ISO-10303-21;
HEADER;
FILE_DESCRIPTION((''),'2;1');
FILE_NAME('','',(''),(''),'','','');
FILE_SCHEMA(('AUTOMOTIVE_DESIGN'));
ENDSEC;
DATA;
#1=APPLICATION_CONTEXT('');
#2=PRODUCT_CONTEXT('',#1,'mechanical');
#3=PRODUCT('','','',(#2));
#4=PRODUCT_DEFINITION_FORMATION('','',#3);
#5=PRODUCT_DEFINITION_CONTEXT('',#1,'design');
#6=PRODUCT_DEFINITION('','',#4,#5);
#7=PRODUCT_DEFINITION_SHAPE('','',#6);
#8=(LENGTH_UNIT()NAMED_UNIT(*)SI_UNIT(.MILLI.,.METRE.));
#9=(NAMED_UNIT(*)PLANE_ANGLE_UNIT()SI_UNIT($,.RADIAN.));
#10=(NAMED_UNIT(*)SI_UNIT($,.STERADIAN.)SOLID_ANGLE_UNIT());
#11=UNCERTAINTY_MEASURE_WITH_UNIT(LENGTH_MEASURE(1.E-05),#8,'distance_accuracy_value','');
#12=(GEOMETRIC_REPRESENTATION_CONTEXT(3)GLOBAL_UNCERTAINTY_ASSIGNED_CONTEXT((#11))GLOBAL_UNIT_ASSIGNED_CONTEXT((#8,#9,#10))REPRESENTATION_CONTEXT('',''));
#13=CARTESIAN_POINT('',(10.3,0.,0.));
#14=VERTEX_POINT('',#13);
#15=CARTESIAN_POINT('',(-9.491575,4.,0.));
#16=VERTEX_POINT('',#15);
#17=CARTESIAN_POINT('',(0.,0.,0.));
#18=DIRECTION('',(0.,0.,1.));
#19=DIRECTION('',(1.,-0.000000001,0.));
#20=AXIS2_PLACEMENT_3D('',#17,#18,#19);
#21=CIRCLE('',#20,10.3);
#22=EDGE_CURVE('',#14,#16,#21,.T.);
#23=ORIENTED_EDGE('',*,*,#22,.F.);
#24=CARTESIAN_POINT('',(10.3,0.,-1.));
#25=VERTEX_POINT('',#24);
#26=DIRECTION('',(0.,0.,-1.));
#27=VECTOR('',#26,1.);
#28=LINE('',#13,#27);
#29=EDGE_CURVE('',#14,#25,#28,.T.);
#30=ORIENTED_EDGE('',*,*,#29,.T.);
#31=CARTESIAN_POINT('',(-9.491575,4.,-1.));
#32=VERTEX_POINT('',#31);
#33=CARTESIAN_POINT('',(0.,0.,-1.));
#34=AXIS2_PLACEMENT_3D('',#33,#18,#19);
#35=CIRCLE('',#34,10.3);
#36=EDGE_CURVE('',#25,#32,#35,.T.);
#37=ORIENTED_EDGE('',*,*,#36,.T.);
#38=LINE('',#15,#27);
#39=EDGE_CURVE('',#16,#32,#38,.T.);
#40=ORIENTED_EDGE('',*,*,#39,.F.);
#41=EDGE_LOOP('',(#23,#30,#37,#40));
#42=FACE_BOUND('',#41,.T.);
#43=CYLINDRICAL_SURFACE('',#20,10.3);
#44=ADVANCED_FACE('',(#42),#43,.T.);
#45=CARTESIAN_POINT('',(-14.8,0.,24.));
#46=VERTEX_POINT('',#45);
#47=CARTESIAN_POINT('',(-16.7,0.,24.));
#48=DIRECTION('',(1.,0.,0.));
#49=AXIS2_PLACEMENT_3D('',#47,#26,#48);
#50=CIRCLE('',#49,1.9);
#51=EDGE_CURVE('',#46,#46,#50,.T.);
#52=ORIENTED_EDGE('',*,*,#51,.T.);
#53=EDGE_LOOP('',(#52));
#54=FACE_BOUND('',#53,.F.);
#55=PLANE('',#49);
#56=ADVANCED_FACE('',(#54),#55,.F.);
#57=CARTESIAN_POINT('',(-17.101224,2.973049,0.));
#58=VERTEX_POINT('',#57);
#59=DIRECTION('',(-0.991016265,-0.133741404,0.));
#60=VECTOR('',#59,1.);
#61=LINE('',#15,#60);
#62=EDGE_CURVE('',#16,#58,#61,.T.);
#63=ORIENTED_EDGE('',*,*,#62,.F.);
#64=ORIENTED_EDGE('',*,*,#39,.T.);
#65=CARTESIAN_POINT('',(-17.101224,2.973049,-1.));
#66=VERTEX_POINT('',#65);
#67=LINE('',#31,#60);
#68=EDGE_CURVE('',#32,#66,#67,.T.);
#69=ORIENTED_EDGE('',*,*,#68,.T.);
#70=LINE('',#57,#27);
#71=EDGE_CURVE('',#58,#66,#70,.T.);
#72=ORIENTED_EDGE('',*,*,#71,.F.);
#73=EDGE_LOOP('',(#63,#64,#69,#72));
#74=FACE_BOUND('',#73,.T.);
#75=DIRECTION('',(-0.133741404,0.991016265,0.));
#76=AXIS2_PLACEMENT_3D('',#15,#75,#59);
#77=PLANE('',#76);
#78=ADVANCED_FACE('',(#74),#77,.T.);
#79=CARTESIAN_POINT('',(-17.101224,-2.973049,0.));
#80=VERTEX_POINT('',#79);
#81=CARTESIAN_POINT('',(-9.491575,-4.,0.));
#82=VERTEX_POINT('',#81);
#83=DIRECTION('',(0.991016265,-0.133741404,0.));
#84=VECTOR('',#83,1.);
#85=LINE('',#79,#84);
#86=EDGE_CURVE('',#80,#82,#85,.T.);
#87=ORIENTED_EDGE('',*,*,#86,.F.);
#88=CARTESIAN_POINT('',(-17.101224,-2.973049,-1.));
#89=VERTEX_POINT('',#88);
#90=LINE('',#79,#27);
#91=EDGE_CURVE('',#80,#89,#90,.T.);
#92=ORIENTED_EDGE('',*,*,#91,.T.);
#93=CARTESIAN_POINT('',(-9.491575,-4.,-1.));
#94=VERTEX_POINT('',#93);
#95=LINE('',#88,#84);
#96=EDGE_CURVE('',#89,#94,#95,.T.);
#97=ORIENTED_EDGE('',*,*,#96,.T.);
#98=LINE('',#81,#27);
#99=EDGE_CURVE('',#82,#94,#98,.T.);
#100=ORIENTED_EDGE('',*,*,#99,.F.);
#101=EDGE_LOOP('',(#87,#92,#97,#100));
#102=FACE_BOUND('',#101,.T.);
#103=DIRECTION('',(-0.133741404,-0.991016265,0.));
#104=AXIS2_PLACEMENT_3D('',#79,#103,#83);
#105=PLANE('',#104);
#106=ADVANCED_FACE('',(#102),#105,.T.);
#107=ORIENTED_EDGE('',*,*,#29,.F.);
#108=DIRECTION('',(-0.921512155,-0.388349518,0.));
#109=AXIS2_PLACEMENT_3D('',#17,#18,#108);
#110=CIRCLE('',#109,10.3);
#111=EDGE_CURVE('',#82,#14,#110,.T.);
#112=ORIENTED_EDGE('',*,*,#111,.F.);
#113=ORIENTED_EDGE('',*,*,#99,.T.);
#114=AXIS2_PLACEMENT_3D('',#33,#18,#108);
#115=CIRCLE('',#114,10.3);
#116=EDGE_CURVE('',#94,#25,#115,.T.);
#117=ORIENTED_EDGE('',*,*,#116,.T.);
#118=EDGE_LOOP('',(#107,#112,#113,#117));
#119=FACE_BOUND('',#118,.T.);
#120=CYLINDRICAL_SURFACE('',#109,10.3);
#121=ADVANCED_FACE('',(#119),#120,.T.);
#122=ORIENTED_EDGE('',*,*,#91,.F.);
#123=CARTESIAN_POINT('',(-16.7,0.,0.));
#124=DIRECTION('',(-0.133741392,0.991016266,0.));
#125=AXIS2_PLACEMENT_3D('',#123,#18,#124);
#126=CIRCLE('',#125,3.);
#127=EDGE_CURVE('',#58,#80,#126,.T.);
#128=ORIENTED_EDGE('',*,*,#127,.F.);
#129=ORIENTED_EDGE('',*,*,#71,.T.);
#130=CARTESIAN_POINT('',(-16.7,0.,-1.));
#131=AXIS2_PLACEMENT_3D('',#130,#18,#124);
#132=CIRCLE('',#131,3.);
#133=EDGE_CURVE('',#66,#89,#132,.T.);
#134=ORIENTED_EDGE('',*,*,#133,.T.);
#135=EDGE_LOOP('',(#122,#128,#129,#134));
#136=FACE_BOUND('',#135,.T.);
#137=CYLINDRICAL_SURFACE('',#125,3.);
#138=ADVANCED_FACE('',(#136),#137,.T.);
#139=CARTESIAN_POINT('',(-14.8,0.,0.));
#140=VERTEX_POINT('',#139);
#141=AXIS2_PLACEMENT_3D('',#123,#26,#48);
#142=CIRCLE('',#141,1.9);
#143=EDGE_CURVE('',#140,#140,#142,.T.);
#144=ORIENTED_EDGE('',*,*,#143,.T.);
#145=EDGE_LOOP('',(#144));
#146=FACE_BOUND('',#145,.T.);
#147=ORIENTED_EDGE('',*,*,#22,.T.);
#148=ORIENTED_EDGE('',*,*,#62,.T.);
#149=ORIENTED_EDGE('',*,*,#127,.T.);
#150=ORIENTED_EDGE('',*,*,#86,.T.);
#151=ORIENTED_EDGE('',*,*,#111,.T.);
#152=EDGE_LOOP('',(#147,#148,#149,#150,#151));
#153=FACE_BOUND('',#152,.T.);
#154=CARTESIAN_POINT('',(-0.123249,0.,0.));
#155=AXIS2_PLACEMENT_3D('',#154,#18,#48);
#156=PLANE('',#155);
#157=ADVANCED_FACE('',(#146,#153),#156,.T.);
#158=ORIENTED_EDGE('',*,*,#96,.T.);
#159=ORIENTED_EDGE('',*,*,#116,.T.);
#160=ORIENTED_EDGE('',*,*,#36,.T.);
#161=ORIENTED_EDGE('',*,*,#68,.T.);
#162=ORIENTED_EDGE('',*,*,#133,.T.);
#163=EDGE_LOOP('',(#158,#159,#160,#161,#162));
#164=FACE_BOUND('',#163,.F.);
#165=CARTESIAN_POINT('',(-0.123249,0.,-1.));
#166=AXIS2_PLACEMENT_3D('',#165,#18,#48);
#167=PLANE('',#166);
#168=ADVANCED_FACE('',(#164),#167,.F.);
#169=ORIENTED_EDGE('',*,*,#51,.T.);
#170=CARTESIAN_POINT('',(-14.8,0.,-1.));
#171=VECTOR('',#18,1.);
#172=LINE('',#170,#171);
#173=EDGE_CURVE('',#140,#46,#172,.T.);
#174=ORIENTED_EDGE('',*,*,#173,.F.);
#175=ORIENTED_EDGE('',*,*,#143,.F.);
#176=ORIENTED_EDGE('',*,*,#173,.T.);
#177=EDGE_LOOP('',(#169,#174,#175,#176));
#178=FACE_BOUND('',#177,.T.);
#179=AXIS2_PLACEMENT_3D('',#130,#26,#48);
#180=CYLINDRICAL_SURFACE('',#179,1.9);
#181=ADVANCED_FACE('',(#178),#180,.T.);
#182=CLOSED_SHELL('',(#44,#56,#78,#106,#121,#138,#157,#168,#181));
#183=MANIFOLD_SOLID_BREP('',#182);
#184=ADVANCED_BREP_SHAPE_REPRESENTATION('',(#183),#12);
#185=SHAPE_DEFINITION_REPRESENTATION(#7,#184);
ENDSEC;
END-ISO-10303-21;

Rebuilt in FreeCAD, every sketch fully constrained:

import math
import FreeCAD as App
import Part
import Sketcher
from FreeCAD import Vector
Q = App.Units.Quantity

doc = App.newDocument("Part")
body = doc.addObject("PartDesign::Body", "Body")

# Sketch on XY plane
sketch1 = doc.addObject("Sketcher::SketchObject", "Sketch")
body.addObject(sketch1)
sketch1.AttachmentSupport = (doc.XY_Plane, [""])
sketch1.MapMode = "FlatFace"
sketch1.addGeometry(Part.ArcOfCircle(Part.Circle(Vector(0, 0, 0), Vector(0, 0, 1), 10.3), math.radians(-157.14816), math.radians(0)), False)
sketch1.addGeometry(Part.ArcOfCircle(Part.Circle(Vector(0, 0, 0), Vector(0, 0, 1), 10.3), math.radians(0), math.radians(157.14816)), False)
sketch1.addGeometry(Part.LineSegment(Vector(-9.491575, 4, 0), Vector(-17.101224, 2.973049, 0)), False)
sketch1.addGeometry(Part.ArcOfCircle(Part.Circle(Vector(-16.7, 0, 0), Vector(0, 0, 1), 3), math.radians(97.685847), math.radians(262.314153)), False)
sketch1.addGeometry(Part.LineSegment(Vector(-17.101224, -2.973049, 0), Vector(-9.491575, -4, 0)), False)
sketch1.addGeometry(Part.Circle(Vector(-16.7, 0, 0), Vector(0, 0, 1), 1.5), False)
sketch1.addConstraint(Sketcher.Constraint("Tangent", 0, 2, 1, 1))
sketch1.addConstraint(Sketcher.Constraint("Coincident", 1, 2, 2, 1))
sketch1.addConstraint(Sketcher.Constraint("Tangent", 2, 2, 3, 1))
sketch1.addConstraint(Sketcher.Constraint("Tangent", 3, 2, 4, 1))
sketch1.addConstraint(Sketcher.Constraint("Coincident", 4, 2, 0, 1))
sketch1.addConstraint(Sketcher.Constraint("Coincident", 0, 3, -1, 1))
sketch1.addConstraint(Sketcher.Constraint("Coincident", 5, 3, 3, 3))
sketch1.addConstraint(Sketcher.Constraint("Equal", 0, 1))
sketch1.addConstraint(Sketcher.Constraint("Symmetric", 2, 2, 3, 2, -1))
sketch1.addConstraint(Sketcher.Constraint("PointOnObject", 0, 2, -1))
sketch1.addConstraint(Sketcher.Constraint("Diameter", 5, Q("3 mm")))
sketch1.addConstraint(Sketcher.Constraint("Radius", 3, Q("3 mm")))
sketch1.addConstraint(Sketcher.Constraint("Radius", 0, Q("10.3 mm")))
sketch1.addConstraint(Sketcher.Constraint("DistanceY", -1, 1, 1, 2, Q("4 mm")))
sketch1.addConstraint(Sketcher.Constraint("DistanceX", 3, 3, 0, 2, Q("27 mm")))
pad1 = doc.addObject("PartDesign::Pad", "Pad")
body.addObject(pad1)
pad1.Profile = sketch1
pad1.Length = 1
pad1.Reversed = True

# Sketch on XY plane
sketch2 = doc.addObject("Sketcher::SketchObject", "Sketch001")
body.addObject(sketch2)
sketch2.AttachmentSupport = (doc.XY_Plane, [""])
sketch2.MapMode = "FlatFace"
sketch2.AttachmentOffset = App.Placement(Vector(0, 0, -1), App.Rotation())
sketch2.addGeometry(Part.Circle(Vector(-16.7, 0, 0), Vector(0, 0, 1), 1.9), False)
sketch2.addConstraint(Sketcher.Constraint("PointOnObject", 0, 3, -1))
sketch2.addConstraint(Sketcher.Constraint("Diameter", 0, Q("3.8 mm")))
sketch2.addConstraint(Sketcher.Constraint("DistanceX", 0, 3, -1, 1, Q("16.7 mm")))
pad2 = doc.addObject("PartDesign::Pad", "Pad001")
body.addObject(pad2)
pad2.Profile = sketch2
pad2.Length = 25

doc.recompute()
